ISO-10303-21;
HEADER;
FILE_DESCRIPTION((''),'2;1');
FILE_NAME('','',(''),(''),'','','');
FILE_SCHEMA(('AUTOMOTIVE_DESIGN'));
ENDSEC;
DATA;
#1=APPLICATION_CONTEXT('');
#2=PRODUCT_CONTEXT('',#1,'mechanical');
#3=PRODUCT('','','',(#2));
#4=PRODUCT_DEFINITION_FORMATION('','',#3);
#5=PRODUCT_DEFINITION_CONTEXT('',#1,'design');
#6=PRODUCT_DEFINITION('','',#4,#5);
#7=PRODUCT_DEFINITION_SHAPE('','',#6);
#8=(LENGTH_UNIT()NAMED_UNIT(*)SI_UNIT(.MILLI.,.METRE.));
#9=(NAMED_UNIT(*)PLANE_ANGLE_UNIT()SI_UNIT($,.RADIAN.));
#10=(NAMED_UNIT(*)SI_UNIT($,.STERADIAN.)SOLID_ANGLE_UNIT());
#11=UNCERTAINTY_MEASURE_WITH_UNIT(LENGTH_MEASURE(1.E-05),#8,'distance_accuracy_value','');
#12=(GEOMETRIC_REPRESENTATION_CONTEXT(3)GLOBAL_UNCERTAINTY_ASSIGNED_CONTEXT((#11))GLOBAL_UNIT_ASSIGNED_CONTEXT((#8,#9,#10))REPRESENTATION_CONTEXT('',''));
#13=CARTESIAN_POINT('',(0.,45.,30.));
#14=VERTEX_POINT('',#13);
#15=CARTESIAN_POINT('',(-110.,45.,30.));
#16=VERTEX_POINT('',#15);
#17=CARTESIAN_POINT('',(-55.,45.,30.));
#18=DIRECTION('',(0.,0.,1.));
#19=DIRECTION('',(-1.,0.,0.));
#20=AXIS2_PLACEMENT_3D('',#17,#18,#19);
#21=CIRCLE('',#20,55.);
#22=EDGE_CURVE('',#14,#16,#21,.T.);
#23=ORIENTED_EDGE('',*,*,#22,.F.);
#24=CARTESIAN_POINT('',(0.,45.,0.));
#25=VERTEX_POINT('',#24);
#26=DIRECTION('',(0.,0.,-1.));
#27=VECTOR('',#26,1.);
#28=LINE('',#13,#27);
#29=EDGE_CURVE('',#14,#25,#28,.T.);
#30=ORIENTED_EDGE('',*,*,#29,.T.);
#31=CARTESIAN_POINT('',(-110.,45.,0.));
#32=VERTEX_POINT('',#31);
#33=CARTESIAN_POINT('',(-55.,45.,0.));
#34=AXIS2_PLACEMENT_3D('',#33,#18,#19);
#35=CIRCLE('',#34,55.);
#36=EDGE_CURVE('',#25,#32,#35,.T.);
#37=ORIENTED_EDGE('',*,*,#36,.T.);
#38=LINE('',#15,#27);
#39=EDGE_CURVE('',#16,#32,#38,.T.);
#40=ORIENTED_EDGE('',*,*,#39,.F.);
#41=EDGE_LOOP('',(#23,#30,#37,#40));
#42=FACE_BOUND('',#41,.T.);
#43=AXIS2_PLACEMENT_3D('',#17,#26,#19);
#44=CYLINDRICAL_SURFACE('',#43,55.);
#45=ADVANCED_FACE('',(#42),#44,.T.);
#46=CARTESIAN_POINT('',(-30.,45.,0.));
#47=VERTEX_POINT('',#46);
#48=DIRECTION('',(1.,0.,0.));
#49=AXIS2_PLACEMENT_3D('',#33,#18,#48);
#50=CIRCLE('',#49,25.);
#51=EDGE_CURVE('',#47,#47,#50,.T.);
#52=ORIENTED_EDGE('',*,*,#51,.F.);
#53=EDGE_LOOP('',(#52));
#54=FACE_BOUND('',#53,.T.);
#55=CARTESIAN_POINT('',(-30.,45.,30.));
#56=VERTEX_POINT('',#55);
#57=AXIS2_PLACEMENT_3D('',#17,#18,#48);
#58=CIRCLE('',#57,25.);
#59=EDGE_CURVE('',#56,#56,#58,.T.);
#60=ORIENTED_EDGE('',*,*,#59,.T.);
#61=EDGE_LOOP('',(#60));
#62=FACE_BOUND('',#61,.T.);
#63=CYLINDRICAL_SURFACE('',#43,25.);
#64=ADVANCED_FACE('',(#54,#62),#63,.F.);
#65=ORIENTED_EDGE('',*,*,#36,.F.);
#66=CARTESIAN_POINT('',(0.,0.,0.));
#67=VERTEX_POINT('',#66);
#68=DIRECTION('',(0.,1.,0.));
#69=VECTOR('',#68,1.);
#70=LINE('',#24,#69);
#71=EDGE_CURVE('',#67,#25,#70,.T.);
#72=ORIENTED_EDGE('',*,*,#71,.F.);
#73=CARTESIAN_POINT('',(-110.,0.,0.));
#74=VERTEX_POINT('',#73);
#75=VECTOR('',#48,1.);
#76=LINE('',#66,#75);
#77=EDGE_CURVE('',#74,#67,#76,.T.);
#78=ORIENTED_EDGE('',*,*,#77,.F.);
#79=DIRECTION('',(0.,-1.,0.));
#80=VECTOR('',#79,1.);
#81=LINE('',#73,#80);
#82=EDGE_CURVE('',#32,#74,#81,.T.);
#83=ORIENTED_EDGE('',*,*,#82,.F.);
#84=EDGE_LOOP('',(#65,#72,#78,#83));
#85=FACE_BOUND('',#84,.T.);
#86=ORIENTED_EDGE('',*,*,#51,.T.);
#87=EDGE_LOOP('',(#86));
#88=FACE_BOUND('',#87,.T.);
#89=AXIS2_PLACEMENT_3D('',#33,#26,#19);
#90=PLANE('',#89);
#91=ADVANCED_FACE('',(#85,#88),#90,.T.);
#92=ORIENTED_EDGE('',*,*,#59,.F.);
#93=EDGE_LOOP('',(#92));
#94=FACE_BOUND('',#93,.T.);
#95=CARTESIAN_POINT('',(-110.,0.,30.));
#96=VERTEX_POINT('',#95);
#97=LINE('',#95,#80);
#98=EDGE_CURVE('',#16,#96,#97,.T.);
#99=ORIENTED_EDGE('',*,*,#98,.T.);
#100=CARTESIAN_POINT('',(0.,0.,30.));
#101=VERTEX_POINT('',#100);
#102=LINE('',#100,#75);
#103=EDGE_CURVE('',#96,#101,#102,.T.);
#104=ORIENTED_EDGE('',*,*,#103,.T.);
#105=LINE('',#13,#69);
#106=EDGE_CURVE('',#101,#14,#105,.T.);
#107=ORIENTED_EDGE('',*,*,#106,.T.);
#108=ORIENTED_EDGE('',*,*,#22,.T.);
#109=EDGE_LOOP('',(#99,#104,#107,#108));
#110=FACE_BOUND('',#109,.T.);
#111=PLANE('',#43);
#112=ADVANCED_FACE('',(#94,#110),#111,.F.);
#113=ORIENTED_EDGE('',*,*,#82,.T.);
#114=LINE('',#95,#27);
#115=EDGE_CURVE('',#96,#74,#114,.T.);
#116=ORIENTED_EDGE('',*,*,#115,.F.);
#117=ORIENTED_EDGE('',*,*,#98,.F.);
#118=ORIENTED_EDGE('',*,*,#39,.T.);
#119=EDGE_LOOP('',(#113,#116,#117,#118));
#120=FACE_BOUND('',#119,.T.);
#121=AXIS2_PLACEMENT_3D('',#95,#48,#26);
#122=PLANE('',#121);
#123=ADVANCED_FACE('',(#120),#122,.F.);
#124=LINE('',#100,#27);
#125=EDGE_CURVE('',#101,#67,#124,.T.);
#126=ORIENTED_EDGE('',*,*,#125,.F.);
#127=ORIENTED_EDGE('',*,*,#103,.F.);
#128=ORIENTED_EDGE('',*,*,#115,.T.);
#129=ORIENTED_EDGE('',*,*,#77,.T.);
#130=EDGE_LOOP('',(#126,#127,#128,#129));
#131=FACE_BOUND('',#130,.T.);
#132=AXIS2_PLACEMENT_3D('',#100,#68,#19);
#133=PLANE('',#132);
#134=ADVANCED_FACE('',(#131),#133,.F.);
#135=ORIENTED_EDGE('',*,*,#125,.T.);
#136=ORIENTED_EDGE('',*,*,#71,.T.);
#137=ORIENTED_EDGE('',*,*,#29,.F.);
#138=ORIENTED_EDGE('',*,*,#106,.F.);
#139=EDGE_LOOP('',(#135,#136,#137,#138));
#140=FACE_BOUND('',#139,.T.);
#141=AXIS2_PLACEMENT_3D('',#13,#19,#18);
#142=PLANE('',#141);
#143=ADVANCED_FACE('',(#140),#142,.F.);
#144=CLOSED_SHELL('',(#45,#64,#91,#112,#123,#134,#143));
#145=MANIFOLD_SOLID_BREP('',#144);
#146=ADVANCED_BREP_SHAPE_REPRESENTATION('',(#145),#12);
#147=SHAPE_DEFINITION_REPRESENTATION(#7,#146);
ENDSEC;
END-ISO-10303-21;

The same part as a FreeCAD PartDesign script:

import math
import FreeCAD as App
import Part
import Sketcher

doc = App.newDocument("Part")
body = doc.addObject("PartDesign::Body", "Body")

sketch1 = doc.addObject("Sketcher::SketchObject", "Sketch")
body.addObject(sketch1)
sketch1.AttachmentSupport = (doc.XY_Plane, [""])
sketch1.MapMode = "FlatFace"
sketch1.addGeometry([
    Part.LineSegment(App.Vector(-110, 0, 0), App.Vector(0, 0, 0)),
    Part.LineSegment(App.Vector(0, 0, 0), App.Vector(0, 45, 0)),
    Part.ArcOfCircle(Part.Circle(App.Vector(-55, 45, 0), App.Vector(0, 0, 1), 55), math.radians(0), math.radians(180)),
    Part.LineSegment(App.Vector(-110, 45, 0), App.Vector(-110, 0, 0)),
    Part.Circle(App.Vector(-55, 45, 0), App.Vector(0, 0, 1), 25),
], False)
sketch1.addConstraint([
    Sketcher.Constraint("Coincident", 0, 2, 1, 1),
    Sketcher.Constraint("Tangent", 1, 2, 2, 1),
    Sketcher.Constraint("Tangent", 2, 2, 3, 1),
    Sketcher.Constraint("Coincident", 3, 2, 0, 1),
    Sketcher.Constraint("Horizontal", 0),
    Sketcher.Constraint("Vertical", 1),
    Sketcher.Constraint("Vertical", 3),
    Sketcher.Constraint("Coincident", 0, 2, -1, 1),
    Sketcher.Constraint("Coincident", 4, 3, 2, 3),
    Sketcher.Constraint("Diameter", 4, 50.0),
    Sketcher.Constraint("Radius", 2, 55.0),
    Sketcher.Constraint("DistanceY", 1, 1, 1, 2, 45.0),
])
pad1 = doc.addObject("PartDesign::Pad", "Pad")
body.addObject(pad1)
pad1.Profile = sketch1
pad1.Length = 30

doc.recompute()
